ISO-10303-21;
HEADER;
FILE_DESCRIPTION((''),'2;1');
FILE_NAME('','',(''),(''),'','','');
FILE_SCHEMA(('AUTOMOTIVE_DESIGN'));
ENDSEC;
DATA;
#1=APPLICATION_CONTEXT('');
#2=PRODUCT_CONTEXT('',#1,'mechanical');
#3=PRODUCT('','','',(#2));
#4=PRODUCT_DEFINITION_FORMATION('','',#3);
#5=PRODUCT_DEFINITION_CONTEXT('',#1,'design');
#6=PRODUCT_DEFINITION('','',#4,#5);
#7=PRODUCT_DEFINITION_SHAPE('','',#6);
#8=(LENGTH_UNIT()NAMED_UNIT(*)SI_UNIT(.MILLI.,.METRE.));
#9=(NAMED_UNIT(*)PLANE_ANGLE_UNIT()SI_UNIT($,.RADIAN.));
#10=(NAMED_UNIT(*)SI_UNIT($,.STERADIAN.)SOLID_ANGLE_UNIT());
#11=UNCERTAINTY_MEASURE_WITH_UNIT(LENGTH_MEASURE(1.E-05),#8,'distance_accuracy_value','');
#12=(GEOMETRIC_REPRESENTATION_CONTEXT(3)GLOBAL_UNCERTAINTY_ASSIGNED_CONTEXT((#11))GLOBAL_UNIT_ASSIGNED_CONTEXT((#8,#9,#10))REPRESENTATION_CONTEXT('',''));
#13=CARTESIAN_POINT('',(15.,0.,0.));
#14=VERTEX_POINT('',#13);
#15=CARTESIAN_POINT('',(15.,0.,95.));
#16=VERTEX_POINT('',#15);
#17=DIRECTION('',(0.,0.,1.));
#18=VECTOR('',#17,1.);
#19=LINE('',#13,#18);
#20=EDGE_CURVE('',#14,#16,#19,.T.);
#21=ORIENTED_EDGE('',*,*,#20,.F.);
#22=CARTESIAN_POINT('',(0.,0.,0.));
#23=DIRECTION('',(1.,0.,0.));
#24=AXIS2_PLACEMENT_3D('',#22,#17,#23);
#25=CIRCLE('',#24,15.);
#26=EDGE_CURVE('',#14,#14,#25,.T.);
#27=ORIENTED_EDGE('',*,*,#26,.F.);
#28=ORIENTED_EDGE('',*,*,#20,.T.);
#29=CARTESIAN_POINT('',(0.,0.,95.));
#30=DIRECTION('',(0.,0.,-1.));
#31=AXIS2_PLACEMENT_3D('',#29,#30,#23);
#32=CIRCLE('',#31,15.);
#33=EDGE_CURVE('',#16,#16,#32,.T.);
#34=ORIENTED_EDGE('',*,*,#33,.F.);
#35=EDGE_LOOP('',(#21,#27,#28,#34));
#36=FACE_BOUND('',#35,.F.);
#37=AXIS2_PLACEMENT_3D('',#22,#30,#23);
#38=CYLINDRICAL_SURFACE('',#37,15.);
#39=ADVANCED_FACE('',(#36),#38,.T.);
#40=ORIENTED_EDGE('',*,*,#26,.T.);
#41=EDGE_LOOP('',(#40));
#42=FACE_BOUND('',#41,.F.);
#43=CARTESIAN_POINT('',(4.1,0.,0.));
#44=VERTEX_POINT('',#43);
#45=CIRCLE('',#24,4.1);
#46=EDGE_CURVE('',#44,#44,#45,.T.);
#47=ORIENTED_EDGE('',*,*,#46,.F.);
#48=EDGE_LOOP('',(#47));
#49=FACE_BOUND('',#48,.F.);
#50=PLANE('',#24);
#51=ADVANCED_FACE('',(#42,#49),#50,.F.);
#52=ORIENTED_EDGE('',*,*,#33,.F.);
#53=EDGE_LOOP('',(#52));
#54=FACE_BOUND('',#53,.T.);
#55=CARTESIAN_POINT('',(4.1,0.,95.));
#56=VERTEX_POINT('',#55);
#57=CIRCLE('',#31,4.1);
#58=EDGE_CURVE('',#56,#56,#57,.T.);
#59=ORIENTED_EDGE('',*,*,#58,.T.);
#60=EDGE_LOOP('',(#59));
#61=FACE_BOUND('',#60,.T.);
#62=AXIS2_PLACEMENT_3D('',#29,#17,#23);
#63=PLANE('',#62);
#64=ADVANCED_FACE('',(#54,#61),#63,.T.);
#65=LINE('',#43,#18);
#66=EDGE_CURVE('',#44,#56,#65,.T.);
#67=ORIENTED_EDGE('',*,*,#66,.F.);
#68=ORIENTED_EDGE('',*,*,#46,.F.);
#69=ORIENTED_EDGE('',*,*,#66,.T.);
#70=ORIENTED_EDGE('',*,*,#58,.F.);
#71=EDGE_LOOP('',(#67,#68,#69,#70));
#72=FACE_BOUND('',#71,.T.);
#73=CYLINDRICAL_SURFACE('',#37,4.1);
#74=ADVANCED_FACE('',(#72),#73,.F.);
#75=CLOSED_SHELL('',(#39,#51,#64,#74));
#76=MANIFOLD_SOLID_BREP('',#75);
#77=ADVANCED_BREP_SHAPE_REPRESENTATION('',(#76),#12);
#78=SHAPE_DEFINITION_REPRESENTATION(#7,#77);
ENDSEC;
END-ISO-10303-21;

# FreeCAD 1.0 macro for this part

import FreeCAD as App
import Part
import Sketcher
from FreeCAD import Vector
Q = App.Units.Quantity

doc = App.newDocument("Part")
params = doc.addObject("Spreadsheet::Sheet", "Params")
for row, (alias, value) in enumerate([
    ("sketch1_diameter", "30 mm"),
    ("sketch1_diameter2", "8.2 mm"),
    ("pad1_length", "95 mm"),
], start=1):
    params.set(f"A{row}", alias)
    params.set(f"B{row}", "=" + value)
    params.setAlias(f"B{row}", alias)

body = doc.addObject("PartDesign::Body", "Body")

# Sketch on XY plane
sketch1 = doc.addObject("Sketcher::SketchObject", "Sketch")
body.addObject(sketch1)
sketch1.AttachmentSupport = (doc.XY_Plane, [""])
sketch1.MapMode = "FlatFace"
sketch1.addGeometry([
    Part.Circle(Vector(0, 0, 0), Vector(0, 0, 1), 15),
    Part.Circle(Vector(0, 0, 0), Vector(0, 0, 1), 4.1),
], False)
sketch1.addConstraint([
    Sketcher.Constraint("Coincident", 0, 3, -1, 1),
    Sketcher.Constraint("Coincident", 1, 3, -1, 1),
    Sketcher.Constraint("Diameter", 0, Q("30 mm")),
    Sketcher.Constraint("Diameter", 1, Q("8.2 mm")),
])
sketch1.setExpression("Constraints[2]", "Params.sketch1_diameter")
sketch1.setExpression("Constraints[3]", "Params.sketch1_diameter2")
pad1 = doc.addObject("PartDesign::Pad", "Pad")
body.addObject(pad1)
pad1.Profile = sketch1
pad1.setExpression("Length", "Params.pad1_length")

doc.recompute()
